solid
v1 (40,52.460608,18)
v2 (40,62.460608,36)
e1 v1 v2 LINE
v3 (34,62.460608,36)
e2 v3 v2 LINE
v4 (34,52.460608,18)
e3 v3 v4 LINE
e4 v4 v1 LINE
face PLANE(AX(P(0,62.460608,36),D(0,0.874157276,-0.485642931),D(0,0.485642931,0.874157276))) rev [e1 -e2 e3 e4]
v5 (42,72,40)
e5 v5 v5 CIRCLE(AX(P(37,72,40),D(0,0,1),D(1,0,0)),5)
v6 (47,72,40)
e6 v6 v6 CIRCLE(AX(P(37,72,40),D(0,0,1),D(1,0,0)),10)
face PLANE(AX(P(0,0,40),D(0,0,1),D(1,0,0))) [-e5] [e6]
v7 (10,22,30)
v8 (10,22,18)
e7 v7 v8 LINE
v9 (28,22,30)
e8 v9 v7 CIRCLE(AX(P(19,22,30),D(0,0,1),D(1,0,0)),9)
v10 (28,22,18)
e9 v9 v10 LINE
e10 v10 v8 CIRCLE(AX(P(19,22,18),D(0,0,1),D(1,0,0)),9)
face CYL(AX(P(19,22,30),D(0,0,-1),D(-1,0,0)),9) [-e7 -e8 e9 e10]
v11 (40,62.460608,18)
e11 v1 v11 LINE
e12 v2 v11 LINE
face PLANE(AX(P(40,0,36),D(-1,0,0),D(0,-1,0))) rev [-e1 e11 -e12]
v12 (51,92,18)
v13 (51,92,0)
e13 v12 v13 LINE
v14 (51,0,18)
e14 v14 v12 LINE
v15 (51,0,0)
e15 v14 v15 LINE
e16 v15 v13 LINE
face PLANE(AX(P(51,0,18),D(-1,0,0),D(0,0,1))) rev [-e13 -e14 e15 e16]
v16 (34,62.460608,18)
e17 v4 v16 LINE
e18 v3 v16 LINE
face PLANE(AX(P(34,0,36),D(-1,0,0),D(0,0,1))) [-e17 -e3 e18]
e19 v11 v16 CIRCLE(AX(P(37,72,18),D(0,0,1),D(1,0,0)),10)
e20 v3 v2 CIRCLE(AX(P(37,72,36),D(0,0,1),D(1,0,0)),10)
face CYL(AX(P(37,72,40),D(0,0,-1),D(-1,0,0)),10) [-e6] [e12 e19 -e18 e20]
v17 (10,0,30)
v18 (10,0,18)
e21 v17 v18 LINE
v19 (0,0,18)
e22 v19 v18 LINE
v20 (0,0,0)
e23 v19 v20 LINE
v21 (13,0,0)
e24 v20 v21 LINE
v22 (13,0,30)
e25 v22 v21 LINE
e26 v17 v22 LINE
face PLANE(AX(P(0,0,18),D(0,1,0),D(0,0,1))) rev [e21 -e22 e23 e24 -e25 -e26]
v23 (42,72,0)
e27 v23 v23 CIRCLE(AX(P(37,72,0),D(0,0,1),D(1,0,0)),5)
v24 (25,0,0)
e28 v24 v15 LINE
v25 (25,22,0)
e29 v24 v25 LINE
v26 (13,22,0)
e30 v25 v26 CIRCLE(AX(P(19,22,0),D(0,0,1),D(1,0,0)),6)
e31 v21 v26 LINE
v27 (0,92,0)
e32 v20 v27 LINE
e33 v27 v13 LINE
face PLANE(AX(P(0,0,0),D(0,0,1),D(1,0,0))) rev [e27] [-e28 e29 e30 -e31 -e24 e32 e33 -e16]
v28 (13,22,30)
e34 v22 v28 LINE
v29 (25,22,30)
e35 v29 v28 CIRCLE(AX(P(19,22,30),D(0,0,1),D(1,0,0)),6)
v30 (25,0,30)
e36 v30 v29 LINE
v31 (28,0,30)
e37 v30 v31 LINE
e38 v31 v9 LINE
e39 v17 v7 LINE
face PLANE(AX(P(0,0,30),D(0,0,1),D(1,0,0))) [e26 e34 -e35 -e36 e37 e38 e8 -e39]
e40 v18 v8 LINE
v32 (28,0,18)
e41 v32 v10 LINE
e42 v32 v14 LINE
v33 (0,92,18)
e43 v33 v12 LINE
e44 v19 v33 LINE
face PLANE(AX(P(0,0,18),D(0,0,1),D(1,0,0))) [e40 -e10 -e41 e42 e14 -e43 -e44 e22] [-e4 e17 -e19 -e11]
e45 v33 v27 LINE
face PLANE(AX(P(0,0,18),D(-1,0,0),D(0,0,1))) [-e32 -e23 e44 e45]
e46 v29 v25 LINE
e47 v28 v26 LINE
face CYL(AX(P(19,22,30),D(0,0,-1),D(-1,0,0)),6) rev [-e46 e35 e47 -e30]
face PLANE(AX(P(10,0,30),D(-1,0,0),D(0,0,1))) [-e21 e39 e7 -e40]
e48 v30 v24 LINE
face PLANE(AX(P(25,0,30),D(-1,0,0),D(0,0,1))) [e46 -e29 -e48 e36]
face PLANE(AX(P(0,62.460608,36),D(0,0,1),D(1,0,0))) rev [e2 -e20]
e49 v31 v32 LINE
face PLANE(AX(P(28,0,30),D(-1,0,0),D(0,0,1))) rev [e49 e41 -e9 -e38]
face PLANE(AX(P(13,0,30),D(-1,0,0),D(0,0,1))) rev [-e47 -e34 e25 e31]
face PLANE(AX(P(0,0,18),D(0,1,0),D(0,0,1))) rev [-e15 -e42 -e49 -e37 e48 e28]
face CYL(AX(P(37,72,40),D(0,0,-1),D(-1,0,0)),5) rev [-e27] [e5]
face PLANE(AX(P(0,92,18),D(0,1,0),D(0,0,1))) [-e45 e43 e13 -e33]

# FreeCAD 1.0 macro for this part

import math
import FreeCAD as App
import Part
import Sketcher

V = App.Vector


def add_polygon(sketch, points):
    """Adds a closed chain of lines whose ends are joined by coincident constraints."""
    first, n = sketch.GeometryCount, len(points)
    for a, b in zip(points, points[1:] + points[:1]):
        sketch.addGeometry(Part.LineSegment(App.Vector(*a, 0), App.Vector(*b, 0)), False)
    for i in range(n):
        sketch.addConstraint(Sketcher.Constraint("Coincident", first + i, 2, first + (i + 1) % n, 1))

doc = App.newDocument("Part")
params = doc.addObject("Spreadsheet::Sheet", "Params")
for row, (alias, value) in enumerate([
    ("sketch1_radius", "9 mm"),
    ("sketch1_radius2", "10 mm"),
    ("sketch1_width", "10 mm"),
    ("sketch1_width2", "23 mm"),
    ("sketch1_width3", "6 mm"),
    ("pad1_length", "18 mm"),
    ("sketch2_radius", "6 mm"),
    ("sketch2_radius2", "9 mm"),
    ("sketch2_height", "22 mm"),
    ("pad2_length", "30 mm"),
    ("sketch3_diameter", "20 mm"),
    ("sketch3_diameter2", "10 mm"),
    ("pad3_length", "40 mm"),
    ("sketch4_radius", "10 mm"),
    ("sketch4_width", "6 mm"),
    ("sketch4_height", "10 mm"),
    ("pad4_length", "36 mm"),
    ("sketch5_width", "10 mm"),
    ("sketch5_height", "18 mm"),
], start=1):
    params.set(f"A{row}", alias)
    params.set(f"B{row}", "=" + value)
    params.setAlias(f"B{row}", alias)

body = doc.addObject("PartDesign::Body", "Body")

# Sketch on XY plane
sketch1 = body.newObject("Sketcher::SketchObject", "Sketch")
sketch1.AttachmentSupport = (doc.getObject("XY_Plane"), [""])
sketch1.MapMode = "FlatFace"
sketch1.addGeometry(Part.LineSegment(V(0, 92, 0), V(0, 0, 0)), False)
sketch1.addGeometry(Part.LineSegment(V(0, 0, 0), V(10, 0, 0)), False)
sketch1.addGeometry(Part.LineSegment(V(10, 0, 0), V(10, 22, 0)), False)
sketch1.addGeometry(Part.ArcOfCircle(Part.Circle(V(19, 22, 0), V(0, 0, 1), 9), math.radians(0), math.radians(180)), False)
sketch1.addGeometry(Part.LineSegment(V(28, 22, 0), V(28, 0, 0)), False)
sketch1.addGeometry(Part.LineSegment(V(28, 0, 0), V(51, 0, 0)), False)
sketch1.addGeometry(Part.LineSegment(V(51, 0, 0), V(51, 92, 0)), False)
sketch1.addGeometry(Part.LineSegment(V(51, 92, 0), V(0, 92, 0)), False)
sketch1.addGeometry(Part.LineSegment(V(40, 62, 0), V(40, 52, 0)), False)
sketch1.addGeometry(Part.LineSegment(V(40, 52, 0), V(34, 52, 0)), False)
sketch1.addGeometry(Part.LineSegment(V(34, 52, 0), V(34, 62, 0)), False)
sketch1.addGeometry(Part.ArcOfCircle(Part.Circle(V(37, 72, 0), V(0, 0, 1), 10), math.radians(0), math.radians(253)), False)
sketch1.addGeometry(Part.ArcOfCircle(Part.Circle(V(37, 72, 0), V(0, 0, 1), 10), math.radians(-73), math.radians(0)), False)
sketch1.addConstraint(Sketcher.Constraint("Coincident", 0, 2, 1, 1))
sketch1.addConstraint(Sketcher.Constraint("Coincident", 1, 2, 2, 1))
sketch1.addConstraint(Sketcher.Constraint("Tangent", 2, 2, 3, 2))
sketch1.addConstraint(Sketcher.Constraint("Tangent", 3, 1, 4, 1))
sketch1.addConstraint(Sketcher.Constraint("Coincident", 4, 2, 5, 1))
sketch1.addConstraint(Sketcher.Constraint("Coincident", 5, 2, 6, 1))
sketch1.addConstraint(Sketcher.Constraint("Coincident", 6, 2, 7, 1))
sketch1.addConstraint(Sketcher.Constraint("Coincident", 7, 2, 0, 1))
sketch1.addConstraint(Sketcher.Constraint("Coincident", 8, 2, 9, 1))
sketch1.addConstraint(Sketcher.Constraint("Coincident", 9, 2, 10, 1))
sketch1.addConstraint(Sketcher.Constraint("Coincident", 10, 2, 11, 2))
sketch1.addConstraint(Sketcher.Constraint("Tangent", 11, 1, 12, 2))
sketch1.addConstraint(Sketcher.Constraint("Coincident", 12, 1, 8, 1))
sketch1.addConstraint(Sketcher.Constraint("Vertical", 0))
sketch1.addConstraint(Sketcher.Constraint("Horizontal", 1))
sketch1.addConstraint(Sketcher.Constraint("Vertical", 2))
sketch1.addConstraint(Sketcher.Constraint("Vertical", 4))
sketch1.addConstraint(Sketcher.Constraint("Horizontal", 5))
sketch1.addConstraint(Sketcher.Constraint("Vertical", 6))
sketch1.addConstraint(Sketcher.Constraint("Horizontal", 7))
sketch1.addConstraint(Sketcher.Constraint("Vertical", 8))
sketch1.addConstraint(Sketcher.Constraint("Horizontal", 9))
sketch1.addConstraint(Sketcher.Constraint("Vertical", 10))
sketch1.addConstraint(Sketcher.Constraint("Coincident", 0, 2, -1, 1))
sketch1.addConstraint(Sketcher.Constraint("Equal", 11, 12))
sketch1.addConstraint(Sketcher.Constraint("PointOnObject", 4, 2, -1))
sketch1.addConstraint(Sketcher.Constraint("Horizontal", 12, 3, 11, 1))
sketch1.addConstraint(Sketcher.Constraint("Horizontal", 10, 2, 12, 1))
sketch1.addConstraint(Sketcher.Constraint("Equal", 1, 8))
sketch1.addConstraint(Sketcher.Constraint("Radius", 3, 9.0))
sketch1.addConstraint(Sketcher.Constraint("Radius", 11, 10.0))
sketch1.addConstraint(Sketcher.Constraint("DistanceX", 1, 1, 1, 2, 10.0))
sketch1.addConstraint(Sketcher.Constraint("DistanceX", 5, 1, 5, 2, 23.0))
sketch1.addConstraint(Sketcher.Constraint("DistanceX", 9, 2, 9, 1, 6.0))
sketch1.addConstraint(Sketcher.Constraint("DistanceY", 0, 2, 0, 1, 92.0))
sketch1.addConstraint(Sketcher.Constraint("DistanceY", 2, 1, 2, 2, 22.0))
sketch1.addConstraint(Sketcher.Constraint("DistanceX", -1, 1, 11, 3, 37.0))
sketch1.addConstraint(Sketcher.Constraint("DistanceY", -1, 1, 11, 3, 72.0))
sketch1.setExpression("Constraints[29]", "Params.sketch1_radius")
sketch1.setExpression("Constraints[30]", "Params.sketch1_radius2")
sketch1.setExpression("Constraints[31]", "Params.sketch1_width")
sketch1.setExpression("Constraints[32]", "Params.sketch1_width2")
sketch1.setExpression("Constraints[33]", "Params.sketch1_width3")
pad1 = body.newObject("PartDesign::Pad", "Pad")
pad1.Profile = sketch1
pad1.setExpression("Length", "Params.pad1_length")

# Sketch on XY plane
sketch2 = body.newObject("Sketcher::SketchObject", "Sketch001")
sketch2.AttachmentSupport = (doc.getObject("XY_Plane"), [""])
sketch2.MapMode = "FlatFace"
sketch2.addGeometry(Part.LineSegment(V(10, 22, 0), V(10, 0, 0)), False)
sketch2.addGeometry(Part.LineSegment(V(10, 0, 0), V(13, 0, 0)), False)
sketch2.addGeometry(Part.LineSegment(V(13, 0, 0), V(13, 22, 0)), False)
sketch2.addGeometry(Part.ArcOfCircle(Part.Circle(V(19, 22, 0), V(0, 0, 1), 6), math.radians(0), math.radians(180)), False)
sketch2.addGeometry(Part.LineSegment(V(25, 22, 0), V(25, 0, 0)), False)
sketch2.addGeometry(Part.LineSegment(V(25, 0, 0), V(28, 0, 0)), False)
sketch2.addGeometry(Part.LineSegment(V(28, 0, 0), V(28, 22, 0)), False)
sketch2.addGeometry(Part.ArcOfCircle(Part.Circle(V(19, 22, 0), V(0, 0, 1), 9), math.radians(0), math.radians(180)), False)
sketch2.addConstraint(Sketcher.Constraint("Coincident", 0, 2, 1, 1))
sketch2.addConstraint(Sketcher.Constraint("Coincident", 1, 2, 2, 1))
sketch2.addConstraint(Sketcher.Constraint("Tangent", 2, 2, 3, 2))
sketch2.addConstraint(Sketcher.Constraint("Tangent", 3, 1, 4, 1))
sketch2.addConstraint(Sketcher.Constraint("Coincident", 4, 2, 5, 1))
sketch2.addConstraint(Sketcher.Constraint("Coincident", 5, 2, 6, 1))
sketch2.addConstraint(Sketcher.Constraint("Tangent", 6, 2, 7, 1))
sketch2.addConstraint(Sketcher.Constraint("Tangent", 7, 2, 0, 1))
sketch2.addConstraint(Sketcher.Constraint("Vertical", 0))
sketch2.addConstraint(Sketcher.Constraint("Horizontal", 1))
sketch2.addConstraint(Sketcher.Constraint("Vertical", 2))
sketch2.addConstraint(Sketcher.Constraint("Vertical", 4))
sketch2.addConstraint(Sketcher.Constraint("Horizontal", 5))
sketch2.addConstraint(Sketcher.Constraint("Vertical", 6))
sketch2.addConstraint(Sketcher.Constraint("Coincident", 7, 3, 3, 3))
sketch2.addConstraint(Sketcher.Constraint("PointOnObject", 0, 2, -1))
sketch2.addConstraint(Sketcher.Constraint("PointOnObject", 4, 2, -1))
sketch2.addConstraint(Sketcher.Constraint("Radius", 3, 6.0))
sketch2.addConstraint(Sketcher.Constraint("Radius", 7, 9.0))
sketch2.addConstraint(Sketcher.Constraint("DistanceY", 0, 2, 0, 1, 22.0))
sketch2.addConstraint(Sketcher.Constraint("DistanceX", -1, 1, 3, 3, 19.0))
sketch2.setExpression("Constraints[17]", "Params.sketch2_radius")
sketch2.setExpression("Constraints[18]", "Params.sketch2_radius2")
sketch2.setExpression("Constraints[19]", "Params.sketch2_height")
pad2 = body.newObject("PartDesign::Pad", "Pad001")
pad2.Profile = sketch2
pad2.setExpression("Length", "Params.pad2_length")

# Sketch on XY plane
sketch3 = body.newObject("Sketcher::SketchObject", "Sketch002")
sketch3.AttachmentSupport = (doc.getObject("XY_Plane"), [""])
sketch3.MapMode = "FlatFace"
sketch3.addGeometry(Part.Circle(V(37, 72, 0), V(0, 0, 1), 10), False)
sketch3.addGeometry(Part.Circle(V(37, 72, 0), V(0, 0, 1), 5), False)
sketch3.addConstraint(Sketcher.Constraint("Coincident", 1, 3, 0, 3))
sketch3.addConstraint(Sketcher.Constraint("Diameter", 0, 20.0))
sketch3.addConstraint(Sketcher.Constraint("Diameter", 1, 10.0))
sketch3.addConstraint(Sketcher.Constraint("DistanceX", -1, 1, 0, 3, 37.0))
sketch3.addConstraint(Sketcher.Constraint("DistanceY", -1, 1, 0, 3, 72.0))
sketch3.setExpression("Constraints[1]", "Params.sketch3_diameter")
sketch3.setExpression("Constraints[2]", "Params.sketch3_diameter2")
pad3 = body.newObject("PartDesign::Pad", "Pad002")
pad3.Profile = sketch3
pad3.setExpression("Length", "Params.pad3_length")

# Sketch on XY plane
sketch4 = body.newObject("Sketcher::SketchObject", "Sketch003")
sketch4.AttachmentSupport = (doc.getObject("XY_Plane"), [""])
sketch4.MapMode = "FlatFace"
sketch4.addGeometry(Part.LineSegment(V(34, 62, 0), V(34, 52, 0)), False)
sketch4.addGeometry(Part.LineSegment(V(34, 52, 0), V(40, 52, 0)), False)
sketch4.addGeometry(Part.LineSegment(V(40, 52, 0), V(40, 62, 0)), False)
sketch4.addGeometry(Part.ArcOfCircle(Part.Circle(V(37, 72, 0), V(0, 0, 1), 10), math.radians(-107), math.radians(-73)), False)
sketch4.addConstraint(Sketcher.Constraint("Coincident", 0, 2, 1, 1))
sketch4.addConstraint(Sketcher.Constraint("Coincident", 1, 2, 2, 1))
sketch4.addConstraint(Sketcher.Constraint("Coincident", 2, 2, 3, 2))
sketch4.addConstraint(Sketcher.Constraint("Coincident", 3, 1, 0, 1))
sketch4.addConstraint(Sketcher.Constraint("Vertical", 0))
sketch4.addConstraint(Sketcher.Constraint("Horizontal", 1))
sketch4.addConstraint(Sketcher.Constraint("Vertical", 2))
sketch4.addConstraint(Sketcher.Constraint("Horizontal", 2, 2, 3, 1))
sketch4.addConstraint(Sketcher.Constraint("Radius", 3, 10.0))
sketch4.addConstraint(Sketcher.Constraint("DistanceX", 1, 1, 1, 2, 6.0))
sketch4.addConstraint(Sketcher.Constraint("DistanceY", 0, 2, 0, 1, 10.0))
sketch4.addConstraint(Sketcher.Constraint("DistanceX", -1, 1, 3, 3, 37.0))
sketch4.addConstraint(Sketcher.Constraint("DistanceY", -1, 1, 3, 3, 72.0))
sketch4.setExpression("Constraints[8]", "Params.sketch4_radius")
sketch4.setExpression("Constraints[9]", "Params.sketch4_width")
sketch4.setExpression("Constraints[10]", "Params.sketch4_height")
pad4 = body.newObject("PartDesign::Pad", "Pad003")
pad4.Profile = sketch4
pad4.setExpression("Length", "Params.pad4_length")

# Sketch on YZ plane
sketch5 = body.newObject("Sketcher::SketchObject", "Sketch004")
sketch5.AttachmentSupport = (doc.getObject("YZ_Plane"), [""])
sketch5.MapMode = "FlatFace"
sketch5.AttachmentOffset = App.Placement(V(0, 0, 40), App.Rotation())
add_polygon(sketch5, [(52, 18), (62, 36), (52, 36)])  # lines 0-2
sketch5.addConstraint(Sketcher.Constraint("Horizontal", 1))
sketch5.addConstraint(Sketcher.Constraint("Vertical", 2))
sketch5.addConstraint(Sketcher.Constraint("DistanceX", 1, 2, 1, 1, 10.0))
sketch5.addConstraint(Sketcher.Constraint("DistanceY", 2, 2, 2, 1, 18.0))
sketch5.addConstraint(Sketcher.Constraint("DistanceY", -1, 1, 0, 2, 36.0))
sketch5.addConstraint(Sketcher.Constraint("DistanceX", -1, 1, 0, 2, 62.460608))
sketch5.setExpression("Constraints[5]", "Params.sketch5_width")
sketch5.setExpression("Constraints[6]", "Params.sketch5_height")
pocket1 = body.newObject("PartDesign::Pocket", "Pocket")
pocket1.Profile = sketch5
pocket1.Type = "ThroughAll"

doc.recompute()
